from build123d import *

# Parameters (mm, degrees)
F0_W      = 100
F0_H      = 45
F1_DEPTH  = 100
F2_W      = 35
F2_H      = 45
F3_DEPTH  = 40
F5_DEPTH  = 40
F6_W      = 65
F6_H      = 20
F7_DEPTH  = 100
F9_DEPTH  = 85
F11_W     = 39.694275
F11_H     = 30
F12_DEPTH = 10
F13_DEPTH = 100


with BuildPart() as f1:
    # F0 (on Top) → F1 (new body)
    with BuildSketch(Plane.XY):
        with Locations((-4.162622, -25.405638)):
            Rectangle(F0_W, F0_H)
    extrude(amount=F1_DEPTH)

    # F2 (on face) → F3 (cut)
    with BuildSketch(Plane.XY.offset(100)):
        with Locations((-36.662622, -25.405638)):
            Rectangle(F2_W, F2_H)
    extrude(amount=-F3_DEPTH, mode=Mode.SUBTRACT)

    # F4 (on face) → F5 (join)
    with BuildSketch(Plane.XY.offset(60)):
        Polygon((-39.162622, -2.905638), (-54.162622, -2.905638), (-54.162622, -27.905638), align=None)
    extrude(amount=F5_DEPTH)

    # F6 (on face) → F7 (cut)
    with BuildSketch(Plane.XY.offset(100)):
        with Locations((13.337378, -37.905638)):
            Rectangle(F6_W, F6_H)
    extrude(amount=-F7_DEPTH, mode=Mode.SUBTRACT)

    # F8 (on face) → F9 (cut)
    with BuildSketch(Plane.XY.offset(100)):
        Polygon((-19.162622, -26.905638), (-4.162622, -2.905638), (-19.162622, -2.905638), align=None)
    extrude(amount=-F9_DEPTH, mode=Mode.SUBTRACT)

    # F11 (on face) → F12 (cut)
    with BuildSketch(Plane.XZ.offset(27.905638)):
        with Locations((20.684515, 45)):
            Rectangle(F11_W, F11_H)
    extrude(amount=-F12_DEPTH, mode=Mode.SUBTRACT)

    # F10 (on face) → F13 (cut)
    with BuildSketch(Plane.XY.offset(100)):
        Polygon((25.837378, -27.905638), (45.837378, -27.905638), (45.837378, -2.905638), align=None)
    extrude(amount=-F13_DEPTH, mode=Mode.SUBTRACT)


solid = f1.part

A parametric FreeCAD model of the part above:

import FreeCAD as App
import Part
import Sketcher

V = App.Vector


def add_polygon(sketch, points):
    """Adds a closed chain of lines whose ends are joined by coincident constraints."""
    first, n = sketch.GeometryCount, len(points)
    for a, b in zip(points, points[1:] + points[:1]):
        sketch.addGeometry(Part.LineSegment(App.Vector(*a, 0), App.Vector(*b, 0)), False)
    for i in range(n):
        sketch.addConstraint(Sketcher.Constraint("Coincident", first + i, 2, first + (i + 1) % n, 1))

doc = App.newDocument("Part")
body = doc.addObject("PartDesign::Body", "Body")

# Sketch on XY plane
sketch1 = body.newObject("Sketcher::SketchObject", "Sketch")
sketch1.AttachmentSupport = (doc.getObject("XY_Plane"), [""])
sketch1.MapMode = "FlatFace"
add_polygon(sketch1, [(-54, -3), (-54, -48), (46, -48), (46, -3)])  # lines 0-3
sketch1.addConstraint([
    Sketcher.Constraint("Vertical", 0),
    Sketcher.Constraint("Horizontal", 1),
    Sketcher.Constraint("Vertical", 2),
    Sketcher.Constraint("Horizontal", 3),
    Sketcher.Constraint("DistanceX", 1, 1, 1, 2, 100.0),
    Sketcher.Constraint("DistanceY", 0, 2, 0, 1, 45.0),
    Sketcher.Constraint("DistanceY", 0, 2, -1, 1, 47.905638),
    Sketcher.Constraint("DistanceX", 0, 2, -1, 1, 54.162622),
])
pad1 = body.newObject("PartDesign::Pad", "Pad")
pad1.Profile = sketch1
pad1.Length = 100

# Sketch on XY plane
sketch2 = body.newObject("Sketcher::SketchObject", "Sketch001")
sketch2.AttachmentSupport = (doc.getObject("XY_Plane"), [""])
sketch2.MapMode = "FlatFace"
sketch2.AttachmentOffset = App.Placement(V(0, 0, 100), App.Rotation())
add_polygon(sketch2, [(-54, -3), (-54, -48), (-19, -48), (-19, -3)])  # lines 0-3
sketch2.addConstraint([
    Sketcher.Constraint("Vertical", 0),
    Sketcher.Constraint("Horizontal", 1),
    Sketcher.Constraint("Vertical", 2),
    Sketcher.Constraint("Horizontal", 3),
    Sketcher.Constraint("DistanceX", 1, 1, 1, 2, 35.0),
    Sketcher.Constraint("DistanceY", 0, 2, 0, 1, 45.0),
    Sketcher.Constraint("DistanceY", 0, 2, -1, 1, 47.905638),
    Sketcher.Constraint("DistanceX", 1, 2, -1, 1, 19.162622),
])
pocket1 = body.newObject("PartDesign::Pocket", "Pocket")
pocket1.Profile = sketch2
pocket1.Length = 40

# Sketch on XY plane
sketch3 = body.newObject("Sketcher::SketchObject", "Sketch002")
sketch3.AttachmentSupport = (doc.getObject("XY_Plane"), [""])
sketch3.MapMode = "FlatFace"
sketch3.AttachmentOffset = App.Placement(V(0, 0, 60), App.Rotation())
add_polygon(sketch3, [(-39, -3), (-54, -3), (-54, -28)])  # lines 0-2
sketch3.addConstraint([
    Sketcher.Constraint("Horizontal", 0),
    Sketcher.Constraint("Vertical", 1),
    Sketcher.Constraint("DistanceX", 0, 2, 0, 1, 15.0),
    Sketcher.Constraint("DistanceY", 1, 2, 1, 1, 25.0),
    Sketcher.Constraint("DistanceY", 0, 2, -1, 1, 2.905638),
    Sketcher.Constraint("DistanceX", 0, 2, -1, 1, 54.162622),
])
pad2 = body.newObject("PartDesign::Pad", "Pad001")
pad2.Profile = sketch3
pad2.Length = 40

# Sketch on XY plane
sketch4 = body.newObject("Sketcher::SketchObject", "Sketch003")
sketch4.AttachmentSupport = (doc.getObject("XY_Plane"), [""])
sketch4.MapMode = "FlatFace"
sketch4.AttachmentOffset = App.Placement(V(0, 0, 100), App.Rotation())
add_polygon(sketch4, [(-19, -28), (-19, -48), (46, -48), (46, -28)])  # lines 0-3
sketch4.addConstraint([
    Sketcher.Constraint("Vertical", 0),
    Sketcher.Constraint("Horizontal", 1),
    Sketcher.Constraint("Vertical", 2),
    Sketcher.Constraint("Horizontal", 3),
    Sketcher.Constraint("DistanceX", 1, 1, 1, 2, 65.0),
    Sketcher.Constraint("DistanceY", 0, 2, 0, 1, 20.0),
    Sketcher.Constraint("DistanceX", 0, 2, -1, 1, 19.162622),
    Sketcher.Constraint("DistanceY", 0, 2, -1, 1, 47.905638),
])
pocket2 = body.newObject("PartDesign::Pocket", "Pocket001")
pocket2.Profile = sketch4
pocket2.Length = 100

# Sketch on XY plane
sketch5 = body.newObject("Sketcher::SketchObject", "Sketch004")
sketch5.AttachmentSupport = (doc.getObject("XY_Plane"), [""])
sketch5.MapMode = "FlatFace"
sketch5.AttachmentOffset = App.Placement(V(0, 0, 100), App.Rotation())
add_polygon(sketch5, [(-19, -27), (-4, -3), (-19, -3)])  # lines 0-2
sketch5.addConstraint([
    Sketcher.Constraint("Horizontal", 1),
    Sketcher.Constraint("Vertical", 2),
    Sketcher.Constraint("DistanceX", 1, 2, 1, 1, 15.0),
    Sketcher.Constraint("DistanceY", 2, 2, 2, 1, 24.0),
    Sketcher.Constraint("DistanceX", 0, 2, -1, 1, 4.162622),
    Sketcher.Constraint("DistanceY", 0, 2, -1, 1, 2.905638),
])
pocket3 = body.newObject("PartDesign::Pocket", "Pocket002")
pocket3.Profile = sketch5
pocket3.Length = 85

# Sketch on XZ plane
sketch6 = body.newObject("Sketcher::SketchObject", "Sketch005")
sketch6.AttachmentSupport = (doc.getObject("XZ_Plane"), [""])
sketch6.MapMode = "FlatFace"
sketch6.AttachmentOffset = App.Placement(V(0, 0, 27.905638), App.Rotation())
add_polygon(sketch6, [(1, 60), (1, 30), (41, 30), (41, 60)])  # lines 0-3
sketch6.addConstraint([
    Sketcher.Constraint("Vertical", 0),
    Sketcher.Constraint("Horizontal", 1),
    Sketcher.Constraint("Vertical", 2),
    Sketcher.Constraint("Horizontal", 3),
    Sketcher.Constraint("DistanceY", 0, 2, 0, 1, 30.0),
    Sketcher.Constraint("DistanceY", -1, 1, 0, 2, 30.0),
    Sketcher.Constraint("DistanceX", 1, 1, 1, 2, 39.694275),
    Sketcher.Constraint("DistanceX", -1, 1, 0, 2, 0.837377),
])
pocket4 = body.newObject("PartDesign::Pocket", "Pocket003")
pocket4.Profile = sketch6
pocket4.Length = 10

# Sketch on XY plane
sketch7 = body.newObject("Sketcher::SketchObject", "Sketch006")
sketch7.AttachmentSupport = (doc.getObject("XY_Plane"), [""])
sketch7.MapMode = "FlatFace"
sketch7.AttachmentOffset = App.Placement(V(0, 0, 100), App.Rotation())
add_polygon(sketch7, [(26, -28), (46, -28), (46, -3)])  # lines 0-2
sketch7.addConstraint([
    Sketcher.Constraint("Horizontal", 0),
    Sketcher.Constraint("Vertical", 1),
    Sketcher.Constraint("DistanceX", 0, 1, 0, 2, 20.0),
    Sketcher.Constraint("DistanceY", 1, 1, 1, 2, 25.0),
    Sketcher.Constraint("DistanceY", 0, 2, -1, 1, 27.905638),
    Sketcher.Constraint("DistanceX", -1, 1, 2, 2, 25.837378),
])
pocket5 = body.newObject("PartDesign::Pocket", "Pocket004")
pocket5.Profile = sketch7
pocket5.Length = 100

doc.recompute()
